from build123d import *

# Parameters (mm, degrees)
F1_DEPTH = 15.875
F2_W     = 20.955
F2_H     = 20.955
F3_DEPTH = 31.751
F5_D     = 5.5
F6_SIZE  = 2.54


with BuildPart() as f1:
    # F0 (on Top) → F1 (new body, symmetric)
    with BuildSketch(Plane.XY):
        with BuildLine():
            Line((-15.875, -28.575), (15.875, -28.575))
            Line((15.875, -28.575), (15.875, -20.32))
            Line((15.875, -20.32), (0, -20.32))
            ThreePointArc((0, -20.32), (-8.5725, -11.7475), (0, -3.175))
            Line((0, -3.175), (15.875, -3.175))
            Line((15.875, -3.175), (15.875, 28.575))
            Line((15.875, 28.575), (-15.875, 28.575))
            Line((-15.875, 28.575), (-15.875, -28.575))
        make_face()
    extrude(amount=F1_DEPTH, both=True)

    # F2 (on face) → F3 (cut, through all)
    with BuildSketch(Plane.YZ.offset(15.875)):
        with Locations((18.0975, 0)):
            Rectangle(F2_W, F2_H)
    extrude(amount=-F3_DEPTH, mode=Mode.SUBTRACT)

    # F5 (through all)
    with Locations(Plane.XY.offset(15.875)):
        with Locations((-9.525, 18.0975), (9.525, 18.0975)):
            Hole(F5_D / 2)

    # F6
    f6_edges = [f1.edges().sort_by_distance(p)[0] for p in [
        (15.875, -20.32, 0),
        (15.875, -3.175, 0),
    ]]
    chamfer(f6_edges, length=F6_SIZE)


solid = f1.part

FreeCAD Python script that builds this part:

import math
import FreeCAD as App
import Part
import Sketcher
Q = App.Units.Quantity


def edges_at(feature, points):
    """Names of the edges that pass closest to the given points."""
    edges = feature.Shape.Edges
    near = lambda p: min(range(len(edges)), key=lambda i: edges[i].distToShape(Part.Vertex(*p))[0])
    return sorted({f"Edge{near(p) + 1}" for p in points})

doc = App.newDocument("Part")
params = doc.addObject("Spreadsheet::Sheet", "Params")
for row, (alias, value) in enumerate([
    ("sketch1_width", "1.25 in"),
    ("pad1_length", "1.25 in"),
    ("sketch2_width", "0.825 in"),
    ("hole_diameter", "5.5 mm"),
    ("chamfer_size", "0.1 in"),
], start=1):
    params.set(f"A{row}", alias)
    params.set(f"B{row}", "=" + value)
    params.setAlias(f"B{row}", alias)

body = doc.addObject("PartDesign::Body", "Body")

sketch1 = body.newObject("Sketcher::SketchObject", "Sketch")
sketch1.AttachmentSupport = (doc.getObject("XY_Plane"), [""])
sketch1.MapMode = "FlatFace"
sketch1.addGeometry(Part.LineSegment(App.Vector(-16, -29, 0), App.Vector(16, -29, 0)), False)
sketch1.addGeometry(Part.LineSegment(App.Vector(16, -29, 0), App.Vector(16, -20, 0)), False)
sketch1.addGeometry(Part.LineSegment(App.Vector(16, -20, 0), App.Vector(0, -20, 0)), False)
sketch1.addGeometry(Part.ArcOfCircle(Part.Circle(App.Vector(0, -12, 0), App.Vector(0, 0, 1), 9), math.radians(90), math.radians(270)), False)
sketch1.addGeometry(Part.LineSegment(App.Vector(0, -3, 0), App.Vector(16, -3, 0)), False)
sketch1.addGeometry(Part.LineSegment(App.Vector(16, -3, 0), App.Vector(16, 29, 0)), False)
sketch1.addGeometry(Part.LineSegment(App.Vector(16, 29, 0), App.Vector(-16, 29, 0)), False)
sketch1.addGeometry(Part.LineSegment(App.Vector(-16, 29, 0), App.Vector(-16, -29, 0)), False)
sketch1.addConstraint(Sketcher.Constraint("Coincident", 0, 2, 1, 1))
sketch1.addConstraint(Sketcher.Constraint("Coincident", 1, 2, 2, 1))
sketch1.addConstraint(Sketcher.Constraint("Tangent", 2, 2, 3, 2))
sketch1.addConstraint(Sketcher.Constraint("Tangent", 3, 1, 4, 1))
sketch1.addConstraint(Sketcher.Constraint("Coincident", 4, 2, 5, 1))
sketch1.addConstraint(Sketcher.Constraint("Coincident", 5, 2, 6, 1))
sketch1.addConstraint(Sketcher.Constraint("Coincident", 6, 2, 7, 1))
sketch1.addConstraint(Sketcher.Constraint("Coincident", 7, 2, 0, 1))
sketch1.addConstraint(Sketcher.Constraint("Horizontal", 0))
sketch1.addConstraint(Sketcher.Constraint("Vertical", 1))
sketch1.addConstraint(Sketcher.Constraint("Horizontal", 2))
sketch1.addConstraint(Sketcher.Constraint("Horizontal", 4))
sketch1.addConstraint(Sketcher.Constraint("Vertical", 5))
sketch1.addConstraint(Sketcher.Constraint("Horizontal", 6))
sketch1.addConstraint(Sketcher.Constraint("Vertical", 7))
sketch1.addConstraint(Sketcher.Constraint("Symmetric", 0, 2, 6, 2, -1, 1))
sketch1.addConstraint(Sketcher.Constraint("PointOnObject", 3, 3, -2))
sketch1.addConstraint(Sketcher.Constraint("Vertical", 1, 2, 4, 2))
sketch1.addConstraint(Sketcher.Constraint("Equal", 6, 5))
sketch1.addConstraint(Sketcher.Constraint("DistanceY", 0, 2, 3, 1, Q("1 in")))
sketch1.addConstraint(Sketcher.Constraint("DistanceX", 0, 1, 0, 2, Q("1.25 in")))
sketch1.addConstraint(Sketcher.Constraint("DistanceY", 1, 2, -1, 1, Q("0.8 in")))
sketch1.setExpression("Constraints[20]", "Params.sketch1_width")
pad1 = body.newObject("PartDesign::Pad", "Pad")
pad1.Profile = sketch1
pad1.setExpression("Length", "Params.pad1_length")
pad1.Midplane = True

sketch2 = body.newObject("Sketcher::SketchObject", "Sketch001")
sketch2.AttachmentSupport = (doc.getObject("YZ_Plane"), [""])
sketch2.MapMode = "FlatFace"
sketch2.AttachmentOffset = App.Placement(App.Vector(0, 0, 0.625 * 25.4), App.Rotation())
sketch2.addGeometry(Part.LineSegment(App.Vector(8, 10, 0), App.Vector(8, -10, 0)), False)
sketch2.addGeometry(Part.LineSegment(App.Vector(8, -10, 0), App.Vector(29, -10, 0)), False)
sketch2.addGeometry(Part.LineSegment(App.Vector(29, -10, 0), App.Vector(29, 10, 0)), False)
sketch2.addGeometry(Part.LineSegment(App.Vector(29, 10, 0), App.Vector(8, 10, 0)), False)
sketch2.addConstraint(Sketcher.Constraint("Coincident", 0, 2, 1, 1))
sketch2.addConstraint(Sketcher.Constraint("Coincident", 1, 2, 2, 1))
sketch2.addConstraint(Sketcher.Constraint("Coincident", 2, 2, 3, 1))
sketch2.addConstraint(Sketcher.Constraint("Coincident", 3, 2, 0, 1))
sketch2.addConstraint(Sketcher.Constraint("Vertical", 0))
sketch2.addConstraint(Sketcher.Constraint("Horizontal", 1))
sketch2.addConstraint(Sketcher.Constraint("Vertical", 2))
sketch2.addConstraint(Sketcher.Constraint("Horizontal", 3))
sketch2.addConstraint(Sketcher.Constraint("Equal", 3, 0))
sketch2.addConstraint(Sketcher.Constraint("DistanceX", -1, 1, 0, 2, Q("0.3 in")))
sketch2.addConstraint(Sketcher.Constraint("DistanceX", 1, 1, 1, 2, Q("0.825 in")))
sketch2.addConstraint(Sketcher.Constraint("DistanceY", 0, 2, -1, 1, Q("0.4125 in")))
sketch2.setExpression("Constraints[10]", "Params.sketch2_width")
pocket1 = body.newObject("PartDesign::Pocket", "Pocket")
pocket1.Profile = sketch2
pocket1.Type = "ThroughAll"

sketch3 = body.newObject("Sketcher::SketchObject", "Sketch002")
sketch3.AttachmentSupport = (doc.getObject("XY_Plane"), [""])
sketch3.MapMode = "FlatFace"
sketch3.AttachmentOffset = App.Placement(App.Vector(0, 0, 0.625 * 25.4), App.Rotation())
sketch3.addGeometry(Part.Circle(App.Vector(-9.5, 18.1, 0), App.Vector(0, 0, 1), 2.8), False)
sketch3.addGeometry(Part.Circle(App.Vector(9.5, 18.1, 0), App.Vector(0, 0, 1), 2.8), False)
sketch3.addConstraint(Sketcher.Constraint("Equal", 0, 1))
sketch3.addConstraint(Sketcher.Constraint("Symmetric", 0, 3, 1, 3, -2))
sketch3.addConstraint(Sketcher.Constraint("Diameter", 0, 5.5))
sketch3.addConstraint(Sketcher.Constraint("DistanceX", 0, 3, 1, 3, Q("0.75 in")))
sketch3.addConstraint(Sketcher.Constraint("DistanceY", -1, 1, 0, 3, Q("0.7125 in")))
doc.recompute()
hole = body.newObject("PartDesign::Hole", "Hole")
hole.Profile = sketch3
hole.ThreadType = "None"
hole.setExpression("Diameter", "Params.hole_diameter")
hole.DepthType = "ThroughAll"
doc.recompute()

chamfer = body.newObject("PartDesign::Chamfer", "Chamfer")
chamfer.Base = (hole, edges_at(hole, [(15.875, -20.32, 0), (15.875, -3.175, 0)]))
chamfer.setExpression("Size", "Params.chamfer_size")

doc.recompute()
